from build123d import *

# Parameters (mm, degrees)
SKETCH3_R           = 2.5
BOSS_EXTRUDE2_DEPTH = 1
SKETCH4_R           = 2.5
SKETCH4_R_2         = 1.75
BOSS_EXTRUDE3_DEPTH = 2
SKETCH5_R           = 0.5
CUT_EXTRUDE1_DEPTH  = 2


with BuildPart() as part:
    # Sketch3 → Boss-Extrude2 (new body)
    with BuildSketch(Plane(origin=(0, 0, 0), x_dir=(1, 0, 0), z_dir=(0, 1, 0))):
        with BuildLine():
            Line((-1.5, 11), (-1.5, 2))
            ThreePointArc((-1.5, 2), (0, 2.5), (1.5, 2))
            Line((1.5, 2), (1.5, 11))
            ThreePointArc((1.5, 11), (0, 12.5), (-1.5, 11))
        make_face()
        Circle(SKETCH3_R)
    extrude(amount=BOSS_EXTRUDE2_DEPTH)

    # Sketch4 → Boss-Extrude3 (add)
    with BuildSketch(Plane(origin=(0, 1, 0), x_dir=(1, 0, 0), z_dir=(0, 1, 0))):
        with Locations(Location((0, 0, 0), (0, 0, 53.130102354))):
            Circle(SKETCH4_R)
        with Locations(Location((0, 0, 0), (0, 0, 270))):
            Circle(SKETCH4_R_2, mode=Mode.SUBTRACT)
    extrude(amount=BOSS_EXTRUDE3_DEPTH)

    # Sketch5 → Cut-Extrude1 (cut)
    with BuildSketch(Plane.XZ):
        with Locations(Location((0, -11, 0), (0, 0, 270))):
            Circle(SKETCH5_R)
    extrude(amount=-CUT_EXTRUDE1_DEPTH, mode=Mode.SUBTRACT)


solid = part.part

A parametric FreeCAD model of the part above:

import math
import FreeCAD as App
import Part
import Sketcher
from FreeCAD import Vector

doc = App.newDocument("Part")
body = doc.addObject("PartDesign::Body", "Body")

sketch1 = body.newObject("Sketcher::SketchObject", "Sketch")
sketch1.AttachmentSupport = (doc.getObject("XZ_Plane"), [""])
sketch1.MapMode = "FlatFace"
sketch1.addGeometry([
    Part.LineSegment(Vector(-1.5, -11, 0), Vector(-1.5, -2, 0)),
    Part.ArcOfCircle(Part.Circle(Vector(0, 0, 0), Vector(0, 0, 1), 2.5), math.radians(-53), math.radians(233)),
    Part.LineSegment(Vector(1.5, -2, 0), Vector(1.5, -11, 0)),
    Part.ArcOfCircle(Part.Circle(Vector(0, -11, 0), Vector(0, 0, 1), 1.5), math.radians(180), math.radians(360)),
], False)
sketch1.addConstraint([
    Sketcher.Constraint("Coincident", 0, 2, 1, 2),
    Sketcher.Constraint("Coincident", 1, 1, 2, 1),
    Sketcher.Constraint("Tangent", 2, 2, 3, 2),
    Sketcher.Constraint("Tangent", 3, 1, 0, 1),
    Sketcher.Constraint("Vertical", 0),
    Sketcher.Constraint("Vertical", 2),
    Sketcher.Constraint("Coincident", 1, 3, -1, 1),
    Sketcher.Constraint("PointOnObject", 3, 3, -2),
    Sketcher.Constraint("Radius", 1, 2.5),
    Sketcher.Constraint("Radius", 3, 1.5),
    Sketcher.Constraint("DistanceY", 0, 1, 0, 2, 9.0),
])
pad1 = body.newObject("PartDesign::Pad", "Pad")
pad1.Profile = sketch1
pad1.Length = 1
pad1.Reversed = True

sketch2 = body.newObject("Sketcher::SketchObject", "Sketch001")
sketch2.AttachmentSupport = (doc.getObject("XZ_Plane"), [""])
sketch2.MapMode = "FlatFace"
sketch2.AttachmentOffset = App.Placement(Vector(0, 0, -1), App.Rotation())
sketch2.addGeometry([
    Part.Circle(Vector(0, 0, 0), Vector(0, 0, 1), 2.5),
    Part.Circle(Vector(0, 0, 0), Vector(0, 0, 1), 1.8),
], False)
sketch2.addConstraint([
    Sketcher.Constraint("Coincident", 0, 3, -1, 1),
    Sketcher.Constraint("Coincident", 1, 3, -1, 1),
    Sketcher.Constraint("Diameter", 0, 5.0),
    Sketcher.Constraint("Diameter", 1, 3.5),
])
pad2 = body.newObject("PartDesign::Pad", "Pad001")
pad2.Profile = sketch2
pad2.Length = 2
pad2.Reversed = True

sketch3 = body.newObject("Sketcher::SketchObject", "Sketch002")
sketch3.AttachmentSupport = (doc.getObject("XZ_Plane"), [""])
sketch3.MapMode = "FlatFace"
sketch3.addGeometry(Part.Circle(Vector(0, -11, 0), Vector(0, 0, 1), 0.5), False)
sketch3.addConstraint([
    Sketcher.Constraint("PointOnObject", 0, 3, -2),
    Sketcher.Constraint("Diameter", 0, 1.0),
    Sketcher.Constraint("DistanceY", 0, 3, -1, 1, 11.0),
])
pocket1 = body.newObject("PartDesign::Pocket", "Pocket")
pocket1.Profile = sketch3
pocket1.Length = 2

doc.recompute()
